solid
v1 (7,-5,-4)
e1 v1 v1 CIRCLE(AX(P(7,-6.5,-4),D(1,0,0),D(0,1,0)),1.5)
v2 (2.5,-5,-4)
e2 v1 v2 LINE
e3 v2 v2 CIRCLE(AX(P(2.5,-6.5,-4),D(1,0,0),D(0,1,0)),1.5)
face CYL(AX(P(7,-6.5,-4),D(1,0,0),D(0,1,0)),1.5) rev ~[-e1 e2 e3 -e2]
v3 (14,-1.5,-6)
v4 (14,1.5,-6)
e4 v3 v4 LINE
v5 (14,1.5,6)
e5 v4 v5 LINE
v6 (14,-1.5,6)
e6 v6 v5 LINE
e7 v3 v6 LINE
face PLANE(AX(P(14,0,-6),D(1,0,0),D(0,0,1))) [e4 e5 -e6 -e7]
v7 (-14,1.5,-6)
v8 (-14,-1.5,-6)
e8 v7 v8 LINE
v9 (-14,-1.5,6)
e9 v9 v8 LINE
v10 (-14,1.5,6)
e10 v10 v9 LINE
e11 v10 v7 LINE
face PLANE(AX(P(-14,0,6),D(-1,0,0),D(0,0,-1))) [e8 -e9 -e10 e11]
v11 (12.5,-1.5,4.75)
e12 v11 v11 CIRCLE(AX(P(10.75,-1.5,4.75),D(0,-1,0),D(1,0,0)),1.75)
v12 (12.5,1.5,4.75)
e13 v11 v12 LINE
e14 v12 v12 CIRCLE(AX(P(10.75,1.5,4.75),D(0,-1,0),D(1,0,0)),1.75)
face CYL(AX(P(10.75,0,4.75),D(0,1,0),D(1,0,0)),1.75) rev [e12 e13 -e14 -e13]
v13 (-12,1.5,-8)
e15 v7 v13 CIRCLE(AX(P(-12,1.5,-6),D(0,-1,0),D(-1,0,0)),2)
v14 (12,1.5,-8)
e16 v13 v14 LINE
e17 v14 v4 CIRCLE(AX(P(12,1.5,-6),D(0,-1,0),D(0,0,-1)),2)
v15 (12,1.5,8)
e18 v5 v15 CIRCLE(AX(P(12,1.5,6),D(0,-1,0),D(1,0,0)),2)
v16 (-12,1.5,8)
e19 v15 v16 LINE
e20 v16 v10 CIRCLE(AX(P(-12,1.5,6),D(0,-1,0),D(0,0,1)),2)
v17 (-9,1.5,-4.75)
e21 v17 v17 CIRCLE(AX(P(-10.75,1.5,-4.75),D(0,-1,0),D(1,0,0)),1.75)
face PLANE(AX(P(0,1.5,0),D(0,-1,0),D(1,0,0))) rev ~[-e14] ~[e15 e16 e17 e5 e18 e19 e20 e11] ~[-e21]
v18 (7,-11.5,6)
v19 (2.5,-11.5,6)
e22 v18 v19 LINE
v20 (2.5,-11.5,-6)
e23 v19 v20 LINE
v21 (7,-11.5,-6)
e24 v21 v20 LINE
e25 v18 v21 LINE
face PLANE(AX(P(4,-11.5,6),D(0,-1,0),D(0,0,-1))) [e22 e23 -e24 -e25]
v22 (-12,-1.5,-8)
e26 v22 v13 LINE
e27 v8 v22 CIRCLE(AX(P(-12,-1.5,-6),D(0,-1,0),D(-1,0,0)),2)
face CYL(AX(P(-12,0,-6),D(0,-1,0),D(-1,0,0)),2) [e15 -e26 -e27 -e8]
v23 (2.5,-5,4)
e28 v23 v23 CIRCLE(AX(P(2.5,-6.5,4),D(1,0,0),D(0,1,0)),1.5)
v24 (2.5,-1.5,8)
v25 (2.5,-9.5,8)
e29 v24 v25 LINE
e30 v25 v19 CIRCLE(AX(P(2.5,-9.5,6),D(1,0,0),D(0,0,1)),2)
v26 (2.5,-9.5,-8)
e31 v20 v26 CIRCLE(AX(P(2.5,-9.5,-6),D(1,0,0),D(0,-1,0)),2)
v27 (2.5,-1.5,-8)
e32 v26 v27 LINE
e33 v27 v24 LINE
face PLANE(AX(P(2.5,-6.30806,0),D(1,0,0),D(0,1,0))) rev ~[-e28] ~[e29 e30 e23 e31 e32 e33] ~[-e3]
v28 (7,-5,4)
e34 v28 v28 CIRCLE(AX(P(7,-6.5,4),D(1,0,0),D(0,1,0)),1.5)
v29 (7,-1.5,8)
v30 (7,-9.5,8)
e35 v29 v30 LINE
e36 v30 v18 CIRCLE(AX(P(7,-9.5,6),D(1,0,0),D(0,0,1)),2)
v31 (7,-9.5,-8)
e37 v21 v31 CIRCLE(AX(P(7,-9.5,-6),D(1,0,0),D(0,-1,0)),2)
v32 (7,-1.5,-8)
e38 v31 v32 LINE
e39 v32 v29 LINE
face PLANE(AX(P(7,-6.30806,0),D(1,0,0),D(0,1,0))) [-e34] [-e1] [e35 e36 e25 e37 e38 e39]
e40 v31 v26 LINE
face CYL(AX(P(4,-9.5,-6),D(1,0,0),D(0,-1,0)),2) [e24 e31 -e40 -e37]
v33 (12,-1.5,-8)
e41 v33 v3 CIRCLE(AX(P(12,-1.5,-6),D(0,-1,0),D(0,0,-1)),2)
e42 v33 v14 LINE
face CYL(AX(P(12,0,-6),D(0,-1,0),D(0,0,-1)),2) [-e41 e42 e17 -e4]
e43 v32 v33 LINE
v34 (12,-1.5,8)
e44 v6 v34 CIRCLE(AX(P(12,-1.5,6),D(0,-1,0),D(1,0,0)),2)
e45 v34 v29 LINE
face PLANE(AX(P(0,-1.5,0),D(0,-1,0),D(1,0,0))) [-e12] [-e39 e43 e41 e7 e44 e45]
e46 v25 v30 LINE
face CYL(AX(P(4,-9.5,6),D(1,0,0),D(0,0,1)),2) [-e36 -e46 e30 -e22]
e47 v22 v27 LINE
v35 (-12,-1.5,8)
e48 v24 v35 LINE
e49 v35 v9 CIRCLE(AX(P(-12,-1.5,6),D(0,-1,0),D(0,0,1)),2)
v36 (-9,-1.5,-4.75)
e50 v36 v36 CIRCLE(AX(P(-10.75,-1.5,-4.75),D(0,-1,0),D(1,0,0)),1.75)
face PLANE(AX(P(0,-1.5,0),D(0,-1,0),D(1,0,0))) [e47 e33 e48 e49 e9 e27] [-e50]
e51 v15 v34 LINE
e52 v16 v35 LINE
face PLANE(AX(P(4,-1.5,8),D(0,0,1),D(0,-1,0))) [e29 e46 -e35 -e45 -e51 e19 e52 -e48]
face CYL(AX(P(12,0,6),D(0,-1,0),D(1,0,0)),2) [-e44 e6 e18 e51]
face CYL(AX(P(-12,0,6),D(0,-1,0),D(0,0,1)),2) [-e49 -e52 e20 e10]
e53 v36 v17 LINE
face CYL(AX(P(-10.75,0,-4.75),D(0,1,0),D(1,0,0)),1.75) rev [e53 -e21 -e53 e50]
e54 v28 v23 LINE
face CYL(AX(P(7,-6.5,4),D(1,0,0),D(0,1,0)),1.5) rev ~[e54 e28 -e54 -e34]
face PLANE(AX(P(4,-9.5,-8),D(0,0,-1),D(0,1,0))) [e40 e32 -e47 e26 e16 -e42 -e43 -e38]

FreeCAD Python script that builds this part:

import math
import FreeCAD as App
import Part
import Sketcher
Q = App.Units.Quantity

doc = App.newDocument("Part")
params = doc.addObject("Spreadsheet::Sheet", "Params")
for row, (alias, value) in enumerate([
    ("sketch1_radius", "2 mm"),
    ("sketch1_diameter", "3.5 mm"),
    ("sketch1_width", "24 mm"),
    ("sketch1_height", "12 mm"),
    ("pad1_length", "3 mm"),
    ("sketch2_radius", "2 mm"),
    ("sketch2_width", "8 mm"),
    ("sketch2_height", "16 mm"),
    ("pad2_length", "3 mm"),
    ("sketch3_radius", "2 mm"),
    ("sketch3_width", "8 mm"),
    ("sketch3_height", "16 mm"),
    ("pad3_length", "3 mm"),
    ("sketch4_diameter", "3 mm"),
], start=1):
    params.set(f"A{row}", alias)
    params.set(f"B{row}", "=" + value)
    params.setAlias(f"B{row}", alias)

body = doc.addObject("PartDesign::Body", "Body")

sketch1 = body.newObject("Sketcher::SketchObject", "Sketch")
sketch1.AttachmentSupport = (doc.getObject("XZ_Plane"), [""])
sketch1.MapMode = "FlatFace"
sketch1.addGeometry([
    Part.ArcOfCircle(Part.Circle(App.Vector(12, 6, 0), App.Vector(0, 0, 1), 2), math.radians(0), math.radians(90)),
    Part.LineSegment(App.Vector(12, 8, 0), App.Vector(-12, 8, 0)),
    Part.ArcOfCircle(Part.Circle(App.Vector(-12, 6, 0), App.Vector(0, 0, 1), 2), math.radians(90), math.radians(180)),
    Part.LineSegment(App.Vector(-14, 6, 0), App.Vector(-14, -6, 0)),
    Part.ArcOfCircle(Part.Circle(App.Vector(-12, -6, 0), App.Vector(0, 0, 1), 2), math.radians(180), math.radians(270)),
    Part.LineSegment(App.Vector(-12, -8, 0), App.Vector(12, -8, 0)),
    Part.ArcOfCircle(Part.Circle(App.Vector(12, -6, 0), App.Vector(0, 0, 1), 2), math.radians(-90), math.radians(0)),
    Part.LineSegment(App.Vector(14, -6, 0), App.Vector(14, 6, 0)),
    Part.Circle(App.Vector(-10.8, -4.8, 0), App.Vector(0, 0, 1), 1.8),
    Part.Circle(App.Vector(10.8, 4.8, 0), App.Vector(0, 0, 1), 1.8),
], False)
sketch1.addConstraint([
    Sketcher.Constraint("Tangent", 0, 2, 1, 1),
    Sketcher.Constraint("Tangent", 1, 2, 2, 1),
    Sketcher.Constraint("Tangent", 2, 2, 3, 1),
    Sketcher.Constraint("Tangent", 3, 2, 4, 1),
    Sketcher.Constraint("Tangent", 4, 2, 5, 1),
    Sketcher.Constraint("Tangent", 5, 2, 6, 1),
    Sketcher.Constraint("Tangent", 6, 2, 7, 1),
    Sketcher.Constraint("Tangent", 7, 2, 0, 1),
    Sketcher.Constraint("Horizontal", 1),
    Sketcher.Constraint("Vertical", 3),
    Sketcher.Constraint("Horizontal", 5),
    Sketcher.Constraint("Vertical", 7),
    Sketcher.Constraint("Equal", 0, 2),
    Sketcher.Constraint("Equal", 2, 4),
    Sketcher.Constraint("Equal", 4, 6),
    Sketcher.Constraint("Equal", 8, 9),
    Sketcher.Constraint("Symmetric", 0, 3, 4, 3, -1, 1),
    Sketcher.Constraint("Symmetric", 8, 3, 9, 3, -1, 1),
    Sketcher.Constraint("Radius", 0, Q("2 mm")),
    Sketcher.Constraint("Diameter", 8, Q("3.5 mm")),
    Sketcher.Constraint("DistanceX", 1, 2, 1, 1, Q("24 mm")),
    Sketcher.Constraint("DistanceY", 3, 2, 3, 1, Q("12 mm")),
    Sketcher.Constraint("DistanceX", 8, 3, 9, 3, Q("21.5 mm")),
    Sketcher.Constraint("DistanceY", 8, 3, 9, 3, Q("9.5 mm")),
])
sketch1.setExpression("Constraints[18]", "Params.sketch1_radius")
sketch1.setExpression("Constraints[19]", "Params.sketch1_diameter")
sketch1.setExpression("Constraints[20]", "Params.sketch1_width")
sketch1.setExpression("Constraints[21]", "Params.sketch1_height")
pad1 = body.newObject("PartDesign::Pad", "Pad")
pad1.Profile = sketch1
pad1.setExpression("Length", "Params.pad1_length")
pad1.Midplane = True

sketch2 = body.newObject("Sketcher::SketchObject", "Sketch001")
sketch2.AttachmentSupport = (doc.getObject("YZ_Plane"), [""])
sketch2.MapMode = "FlatFace"
sketch2.AttachmentOffset = App.Placement(App.Vector(0, 0, 4), App.Rotation())
sketch2.addGeometry([
    Part.LineSegment(App.Vector(-9.5, -8, 0), App.Vector(-1.5, -8, 0)),
    Part.LineSegment(App.Vector(-1.5, -8, 0), App.Vector(-1.5, 8, 0)),
    Part.LineSegment(App.Vector(-1.5, 8, 0), App.Vector(-9.5, 8, 0)),
    Part.ArcOfCircle(Part.Circle(App.Vector(-9.5, 6, 0), App.Vector(0, 0, 1), 2), math.radians(90), math.radians(180)),
    Part.LineSegment(App.Vector(-11.5, 6, 0), App.Vector(-11.5, -6, 0)),
    Part.ArcOfCircle(Part.Circle(App.Vector(-9.5, -6, 0), App.Vector(0, 0, 1), 2), math.radians(180), math.radians(270)),
], False)
sketch2.addConstraint([
    Sketcher.Constraint("Coincident", 0, 2, 1, 1),
    Sketcher.Constraint("Coincident", 1, 2, 2, 1),
    Sketcher.Constraint("Tangent", 2, 2, 3, 1),
    Sketcher.Constraint("Tangent", 3, 2, 4, 1),
    Sketcher.Constraint("Tangent", 4, 2, 5, 1),
    Sketcher.Constraint("Tangent", 5, 2, 0, 1),
    Sketcher.Constraint("Horizontal", 0),
    Sketcher.Constraint("Vertical", 1),
    Sketcher.Constraint("Horizontal", 2),
    Sketcher.Constraint("Vertical", 4),
    Sketcher.Constraint("Equal", 3, 5),
    Sketcher.Constraint("Radius", 3, Q("2 mm")),
    Sketcher.Constraint("DistanceX", 0, 1, 0, 2, Q("8 mm")),
    Sketcher.Constraint("DistanceY", 1, 1, 1, 2, Q("16 mm")),
    Sketcher.Constraint("DistanceY", -1, 1, 3, 3, Q("6 mm")),
    Sketcher.Constraint("DistanceX", 3, 3, -1, 1, Q("9.5 mm")),
])
sketch2.setExpression("Constraints[11]", "Params.sketch2_radius")
sketch2.setExpression("Constraints[12]", "Params.sketch2_width")
sketch2.setExpression("Constraints[13]", "Params.sketch2_height")
pad2 = body.newObject("PartDesign::Pad", "Pad001")
pad2.Profile = sketch2
pad2.setExpression("Length", "Params.pad2_length")

sketch3 = body.newObject("Sketcher::SketchObject", "Sketch002")
sketch3.AttachmentSupport = (doc.getObject("YZ_Plane"), [""])
sketch3.MapMode = "FlatFace"
sketch3.AttachmentOffset = App.Placement(App.Vector(0, 0, 4), App.Rotation())
sketch3.addGeometry([
    Part.LineSegment(App.Vector(-9.5, -8, 0), App.Vector(-1.5, -8, 0)),
    Part.LineSegment(App.Vector(-1.5, -8, 0), App.Vector(-1.5, 8, 0)),
    Part.LineSegment(App.Vector(-1.5, 8, 0), App.Vector(-9.5, 8, 0)),
    Part.ArcOfCircle(Part.Circle(App.Vector(-9.5, 6, 0), App.Vector(0, 0, 1), 2), math.radians(90), math.radians(180)),
    Part.LineSegment(App.Vector(-11.5, 6, 0), App.Vector(-11.5, -6, 0)),
    Part.ArcOfCircle(Part.Circle(App.Vector(-9.5, -6, 0), App.Vector(0, 0, 1), 2), math.radians(180), math.radians(270)),
], False)
sketch3.addConstraint([
    Sketcher.Constraint("Coincident", 0, 2, 1, 1),
    Sketcher.Constraint("Coincident", 1, 2, 2, 1),
    Sketcher.Constraint("Tangent", 2, 2, 3, 1),
    Sketcher.Constraint("Tangent", 3, 2, 4, 1),
    Sketcher.Constraint("Tangent", 4, 2, 5, 1),
    Sketcher.Constraint("Tangent", 5, 2, 0, 1),
    Sketcher.Constraint("Horizontal", 0),
    Sketcher.Constraint("Vertical", 1),
    Sketcher.Constraint("Horizontal", 2),
    Sketcher.Constraint("Vertical", 4),
    Sketcher.Constraint("Equal", 3, 5),
    Sketcher.Constraint("Radius", 3, Q("2 mm")),
    Sketcher.Constraint("DistanceX", 0, 1, 0, 2, Q("8 mm")),
    Sketcher.Constraint("DistanceY", 1, 1, 1, 2, Q("16 mm")),
    Sketcher.Constraint("DistanceY", -1, 1, 3, 3, Q("6 mm")),
    Sketcher.Constraint("DistanceX", 3, 3, -1, 1, Q("9.5 mm")),
])
sketch3.setExpression("Constraints[11]", "Params.sketch3_radius")
sketch3.setExpression("Constraints[12]", "Params.sketch3_width")
sketch3.setExpression("Constraints[13]", "Params.sketch3_height")
pad3 = body.newObject("PartDesign::Pad", "Pad002")
pad3.Profile = sketch3
pad3.setExpression("Length", "Params.pad3_length")
pad3.Midplane = True

sketch4 = body.newObject("Sketcher::SketchObject", "Sketch003")
sketch4.AttachmentSupport = (doc.getObject("YZ_Plane"), [""])
sketch4.MapMode = "FlatFace"
sketch4.AttachmentOffset = App.Placement(App.Vector(0, 0, 7), App.Rotation())
sketch4.addGeometry([
    Part.Circle(App.Vector(-6.5, 4, 0), App.Vector(0, 0, 1), 1.5),
    Part.Circle(App.Vector(-6.5, -4, 0), App.Vector(0, 0, 1), 1.5),
], False)
sketch4.addConstraint([
    Sketcher.Constraint("Equal", 0, 1),
    Sketcher.Constraint("Symmetric", 0, 3, 1, 3, -1),
    Sketcher.Constraint("Diameter", 0, Q("3 mm")),
    Sketcher.Constraint("DistanceY", -1, 1, 0, 3, Q("4 mm")),
    Sketcher.Constraint("DistanceX", 0, 3, -1, 1, Q("6.5 mm")),
])
sketch4.setExpression("Constraints[2]", "Params.sketch4_diameter")
pocket1 = body.newObject("PartDesign::Pocket", "Pocket")
pocket1.Profile = sketch4
pocket1.Type = "ThroughAll"

doc.recompute()
